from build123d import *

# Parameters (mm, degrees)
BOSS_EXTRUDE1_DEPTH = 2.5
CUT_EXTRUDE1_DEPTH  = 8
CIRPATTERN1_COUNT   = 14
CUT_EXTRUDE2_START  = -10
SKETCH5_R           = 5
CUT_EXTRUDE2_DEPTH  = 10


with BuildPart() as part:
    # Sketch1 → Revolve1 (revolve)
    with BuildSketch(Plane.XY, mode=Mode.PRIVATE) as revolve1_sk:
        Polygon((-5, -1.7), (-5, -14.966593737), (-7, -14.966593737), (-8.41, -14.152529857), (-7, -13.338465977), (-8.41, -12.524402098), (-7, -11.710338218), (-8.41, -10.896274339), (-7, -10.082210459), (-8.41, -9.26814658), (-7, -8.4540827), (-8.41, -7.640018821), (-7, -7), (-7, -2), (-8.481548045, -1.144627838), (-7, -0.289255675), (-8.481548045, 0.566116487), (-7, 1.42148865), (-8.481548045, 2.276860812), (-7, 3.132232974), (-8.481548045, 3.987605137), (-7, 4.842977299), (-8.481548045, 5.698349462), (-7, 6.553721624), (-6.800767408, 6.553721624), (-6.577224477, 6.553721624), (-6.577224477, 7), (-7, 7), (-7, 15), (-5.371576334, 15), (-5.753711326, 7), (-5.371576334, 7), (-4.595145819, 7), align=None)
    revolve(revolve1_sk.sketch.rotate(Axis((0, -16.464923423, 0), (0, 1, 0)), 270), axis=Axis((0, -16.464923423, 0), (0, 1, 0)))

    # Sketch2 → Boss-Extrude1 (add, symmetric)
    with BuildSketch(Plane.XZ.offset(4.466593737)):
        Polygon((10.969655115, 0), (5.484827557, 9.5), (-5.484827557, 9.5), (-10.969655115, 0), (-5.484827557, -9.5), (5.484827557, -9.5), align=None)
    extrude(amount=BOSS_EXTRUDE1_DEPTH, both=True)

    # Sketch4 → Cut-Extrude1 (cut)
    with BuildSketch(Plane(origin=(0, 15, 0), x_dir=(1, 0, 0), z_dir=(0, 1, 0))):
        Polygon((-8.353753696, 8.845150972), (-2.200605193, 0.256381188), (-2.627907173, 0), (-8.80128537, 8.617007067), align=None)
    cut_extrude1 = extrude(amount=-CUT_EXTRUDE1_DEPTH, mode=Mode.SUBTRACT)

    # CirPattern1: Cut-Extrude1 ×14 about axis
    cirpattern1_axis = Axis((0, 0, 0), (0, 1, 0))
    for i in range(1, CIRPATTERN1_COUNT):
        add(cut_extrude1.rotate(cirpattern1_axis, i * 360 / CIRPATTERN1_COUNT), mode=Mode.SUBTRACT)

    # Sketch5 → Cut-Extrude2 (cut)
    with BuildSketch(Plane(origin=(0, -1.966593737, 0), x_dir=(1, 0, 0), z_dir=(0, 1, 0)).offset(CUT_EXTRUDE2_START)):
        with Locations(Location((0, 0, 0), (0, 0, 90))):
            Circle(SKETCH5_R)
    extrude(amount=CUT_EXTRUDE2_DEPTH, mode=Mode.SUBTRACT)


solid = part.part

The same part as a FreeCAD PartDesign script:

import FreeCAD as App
import Part
import Sketcher
Q = App.Units.Quantity


def add_polygon(sketch, points):
    """Adds a closed chain of lines whose ends are joined by coincident constraints."""
    first, n = sketch.GeometryCount, len(points)
    for a, b in zip(points, points[1:] + points[:1]):
        sketch.addGeometry(Part.LineSegment(App.Vector(*a, 0), App.Vector(*b, 0)), False)
    for i in range(n):
        sketch.addConstraint(Sketcher.Constraint("Coincident", first + i, 2, first + (i + 1) % n, 1))

doc = App.newDocument("Part")
body = doc.addObject("PartDesign::Body", "Body")

sketch1 = body.newObject("Sketcher::SketchObject", "Sketch")
sketch1.AttachmentSupport = (doc.getObject("XY_Plane"), [""])
sketch1.MapMode = "FlatFace"
add_polygon(sketch1, [(-5, -14.97), (-5, -1.7), (-4.6, 7), (-5.75, 7), (-5.37, 15), (-7, 15), (-7, 7), (-6.58, 7), (-6.58, 6.55), (-7, 6.55), (-8.48, 5.7), (-7, 4.84), (-8.48, 3.99), (-7, 3.13), (-8.48, 2.28), (-7, 1.42), (-8.48, 0.57), (-7, -0.29), (-8.48, -1.14), (-7, -2), (-7, -7), (-8.41, -7.64), (-7, -8.45), (-8.41, -9.27), (-7, -10.08), (-8.41, -10.9), (-7, -11.71), (-8.41, -12.52), (-7, -13.34), (-8.41, -14.15), (-7, -14.97)])
sketch1.addConstraint(Sketcher.Constraint("Vertical", 0))
sketch1.addConstraint(Sketcher.Constraint("Horizontal", 2))
sketch1.addConstraint(Sketcher.Constraint("Horizontal", 4))
sketch1.addConstraint(Sketcher.Constraint("Vertical", 5))
sketch1.addConstraint(Sketcher.Constraint("Horizontal", 6))
sketch1.addConstraint(Sketcher.Constraint("Vertical", 7))
sketch1.addConstraint(Sketcher.Constraint("Horizontal", 8))
sketch1.addConstraint(Sketcher.Constraint("Vertical", 19))
sketch1.addConstraint(Sketcher.Constraint("Horizontal", 30))
sketch1.addConstraint(Sketcher.Constraint("Symmetric", 5, 2, 19, 2, -1))
sketch1.addConstraint(Sketcher.Constraint("Parallel", 9, 11))
sketch1.addConstraint(Sketcher.Constraint("Parallel", 10, 12))
sketch1.addConstraint(Sketcher.Constraint("Parallel", 11, 13))
sketch1.addConstraint(Sketcher.Constraint("Parallel", 12, 14))
sketch1.addConstraint(Sketcher.Constraint("Parallel", 13, 15))
sketch1.addConstraint(Sketcher.Constraint("Parallel", 14, 16))
sketch1.addConstraint(Sketcher.Constraint("Parallel", 15, 17))
sketch1.addConstraint(Sketcher.Constraint("Parallel", 16, 18))
sketch1.addConstraint(Sketcher.Constraint("Parallel", 18, 21))
sketch1.addConstraint(Sketcher.Constraint("Parallel", 17, 22))
sketch1.addConstraint(Sketcher.Constraint("Parallel", 21, 23))
sketch1.addConstraint(Sketcher.Constraint("Parallel", 22, 24))
sketch1.addConstraint(Sketcher.Constraint("Parallel", 23, 25))
sketch1.addConstraint(Sketcher.Constraint("Parallel", 24, 26))
sketch1.addConstraint(Sketcher.Constraint("Parallel", 25, 27))
sketch1.addConstraint(Sketcher.Constraint("Parallel", 26, 28))
sketch1.addConstraint(Sketcher.Constraint("Parallel", 27, 29))
sketch1.addConstraint(Sketcher.Constraint("Horizontal", 2, 2, 5, 2))
sketch1.addConstraint(Sketcher.Constraint("Vertical", 5, 2, 8, 2))
sketch1.addConstraint(Sketcher.Constraint("Vertical", 8, 2, 10, 2))
sketch1.addConstraint(Sketcher.Constraint("Vertical", 9, 2, 11, 2))
sketch1.addConstraint(Sketcher.Constraint("Vertical", 10, 2, 12, 2))
sketch1.addConstraint(Sketcher.Constraint("Vertical", 11, 2, 13, 2))
sketch1.addConstraint(Sketcher.Constraint("Vertical", 12, 2, 14, 2))
sketch1.addConstraint(Sketcher.Constraint("Vertical", 13, 2, 15, 2))
sketch1.addConstraint(Sketcher.Constraint("Vertical", 14, 2, 16, 2))
sketch1.addConstraint(Sketcher.Constraint("Vertical", 15, 2, 17, 2))
sketch1.addConstraint(Sketcher.Constraint("Vertical", 19, 2, 21, 2))
sketch1.addConstraint(Sketcher.Constraint("Vertical", 20, 2, 22, 2))
sketch1.addConstraint(Sketcher.Constraint("Vertical", 21, 2, 23, 2))
sketch1.addConstraint(Sketcher.Constraint("Vertical", 22, 2, 24, 2))
sketch1.addConstraint(Sketcher.Constraint("Vertical", 23, 2, 25, 2))
sketch1.addConstraint(Sketcher.Constraint("Vertical", 24, 2, 26, 2))
sketch1.addConstraint(Sketcher.Constraint("Vertical", 25, 2, 27, 2))
sketch1.addConstraint(Sketcher.Constraint("Vertical", 26, 2, 28, 2))
sketch1.addConstraint(Sketcher.Constraint("Vertical", 27, 2, 29, 2))
sketch1.addConstraint(Sketcher.Constraint("Equal", 9, 10))
sketch1.addConstraint(Sketcher.Constraint("DistanceX", 30, 1, 30, 2, 2.0))
sketch1.addConstraint(Sketcher.Constraint("DistanceY", 5, 2, 5, 1, 8.0))
sketch1.addConstraint(Sketcher.Constraint("DistanceY", 19, 2, 19, 1, 5.0))
sketch1.addConstraint(Sketcher.Constraint("Angle", 9, Q("-150 deg")))
sketch1.addConstraint(Sketcher.Constraint("DistanceX", 0, 2, -1, 1, 5.0))
sketch1.addConstraint(Sketcher.Constraint("DistanceY", -1, 1, 1, 2, 7.0))
sketch1.addConstraint(Sketcher.Constraint("DistanceY", 0, 2, -1, 1, 1.7))
sketch1.addConstraint(Sketcher.Constraint("DistanceX", 20, 2, -1, 1, 8.41))
sketch1.addConstraint(Sketcher.Constraint("DistanceY", 7, 2, 7, 1, 0.446278))
sketch1.addConstraint(Sketcher.Constraint("Distance", 3, 8.009121))
sketch1.addConstraint(Sketcher.Constraint("Distance", 20, 1.548459))
sketch1.addConstraint(Sketcher.Constraint("DistanceX", 2, 2, 2, 1, 1.158566))
sketch1.addConstraint(Sketcher.Constraint("DistanceX", 4, 2, 4, 1, 1.628424))
sketch1.addConstraint(Sketcher.Constraint("DistanceX", 6, 1, 6, 2, 0.422776))
revolution = body.newObject("PartDesign::Revolution", "Revolution")
revolution.Profile = sketch1
revolution.ReferenceAxis = (sketch1, ["V_Axis"])
revolution.Angle = 360

sketch2 = body.newObject("Sketcher::SketchObject", "Sketch001")
sketch2.AttachmentSupport = (doc.getObject("XZ_Plane"), [""])
sketch2.MapMode = "FlatFace"
sketch2.AttachmentOffset = App.Placement(App.Vector(0, 0, 4.466594), App.Rotation())
add_polygon(sketch2, [(11, 0), (5, 10), (-5, 10), (-11, 0), (-5, -10), (5, -10)])
sketch2.addConstraint(Sketcher.Constraint("Horizontal", 1))
sketch2.addConstraint(Sketcher.Constraint("Horizontal", 4))
sketch2.addConstraint(Sketcher.Constraint("Symmetric", 0, 2, 3, 2, -1, 1))
sketch2.addConstraint(Sketcher.Constraint("Symmetric", 2, 2, 5, 2, -1, 1))
sketch2.addConstraint(Sketcher.Constraint("PointOnObject", 2, 2, -1))
sketch2.addConstraint(Sketcher.Constraint("Parallel", 2, 5))
sketch2.addConstraint(Sketcher.Constraint("Vertical", 1, 2, 3, 2))
sketch2.addConstraint(Sketcher.Constraint("Angle", 0, Q("120 deg")))
sketch2.addConstraint(Sketcher.Constraint("DistanceY", 3, 2, 1, 2, 19.0))
sketch2.addConstraint(Sketcher.Constraint("DistanceX", 1, 2, 1, 1, 10.969655))
pad1 = body.newObject("PartDesign::Pad", "Pad")
pad1.Profile = sketch2
pad1.Length = 5
pad1.Midplane = True

sketch3 = body.newObject("Sketcher::SketchObject", "Sketch002")
sketch3.AttachmentSupport = (doc.getObject("XZ_Plane"), [""])
sketch3.MapMode = "FlatFace"
sketch3.AttachmentOffset = App.Placement(App.Vector(0, 0, -15), App.Rotation())
add_polygon(sketch3, [(-2.2, -0.26), (-8.35, -8.85), (-8.8, -8.62), (-2.63, 0)])
sketch3.addConstraint(Sketcher.Constraint("PointOnObject", 2, 2, -1))
sketch3.addConstraint(Sketcher.Constraint("Parallel", 0, 2))
sketch3.addConstraint(Sketcher.Constraint("DistanceX", 2, 2, 3, 2, 0.427302))
sketch3.addConstraint(Sketcher.Constraint("Distance", 1, 0.502329))
sketch3.addConstraint(Sketcher.Constraint("Distance", 2, 10.600161))
sketch3.addConstraint(Sketcher.Constraint("DistanceY", 0, 2, -1, 1, 8.845151))
sketch3.addConstraint(Sketcher.Constraint("DistanceY", 3, 2, -1, 1, 0.256381))
sketch3.addConstraint(Sketcher.Constraint("DistanceX", 0, 2, -1, 1, 8.353754))
pocket1 = body.newObject("PartDesign::Pocket", "Pocket")
pocket1.Profile = sketch3
pocket1.Length = 8
pocket1.Reversed = True
doc.recompute()

polarpattern = body.newObject("PartDesign::PolarPattern", "PolarPattern")
polarpattern.Originals = [pocket1]
polarpattern.Axis = (doc.getObject("Y_Axis"), [""])
polarpattern.Angle = 360
polarpattern.Occurrences = 14
body.Tip = polarpattern

sketch4 = body.newObject("Sketcher::SketchObject", "Sketch003")
sketch4.AttachmentSupport = (doc.getObject("XZ_Plane"), [""])
sketch4.MapMode = "FlatFace"
sketch4.AttachmentOffset = App.Placement(App.Vector(0, 0, 11.966594), App.Rotation())
sketch4.addGeometry(Part.Circle(App.Vector(0, 0, 0), App.Vector(0, 0, 1), 5), False)
sketch4.addConstraint(Sketcher.Constraint("Coincident", 0, 3, -1, 1))
sketch4.addConstraint(Sketcher.Constraint("Diameter", 0, 10.0))
pocket2 = body.newObject("PartDesign::Pocket", "Pocket001")
pocket2.Profile = sketch4
pocket2.Length = 10

doc.recompute()
